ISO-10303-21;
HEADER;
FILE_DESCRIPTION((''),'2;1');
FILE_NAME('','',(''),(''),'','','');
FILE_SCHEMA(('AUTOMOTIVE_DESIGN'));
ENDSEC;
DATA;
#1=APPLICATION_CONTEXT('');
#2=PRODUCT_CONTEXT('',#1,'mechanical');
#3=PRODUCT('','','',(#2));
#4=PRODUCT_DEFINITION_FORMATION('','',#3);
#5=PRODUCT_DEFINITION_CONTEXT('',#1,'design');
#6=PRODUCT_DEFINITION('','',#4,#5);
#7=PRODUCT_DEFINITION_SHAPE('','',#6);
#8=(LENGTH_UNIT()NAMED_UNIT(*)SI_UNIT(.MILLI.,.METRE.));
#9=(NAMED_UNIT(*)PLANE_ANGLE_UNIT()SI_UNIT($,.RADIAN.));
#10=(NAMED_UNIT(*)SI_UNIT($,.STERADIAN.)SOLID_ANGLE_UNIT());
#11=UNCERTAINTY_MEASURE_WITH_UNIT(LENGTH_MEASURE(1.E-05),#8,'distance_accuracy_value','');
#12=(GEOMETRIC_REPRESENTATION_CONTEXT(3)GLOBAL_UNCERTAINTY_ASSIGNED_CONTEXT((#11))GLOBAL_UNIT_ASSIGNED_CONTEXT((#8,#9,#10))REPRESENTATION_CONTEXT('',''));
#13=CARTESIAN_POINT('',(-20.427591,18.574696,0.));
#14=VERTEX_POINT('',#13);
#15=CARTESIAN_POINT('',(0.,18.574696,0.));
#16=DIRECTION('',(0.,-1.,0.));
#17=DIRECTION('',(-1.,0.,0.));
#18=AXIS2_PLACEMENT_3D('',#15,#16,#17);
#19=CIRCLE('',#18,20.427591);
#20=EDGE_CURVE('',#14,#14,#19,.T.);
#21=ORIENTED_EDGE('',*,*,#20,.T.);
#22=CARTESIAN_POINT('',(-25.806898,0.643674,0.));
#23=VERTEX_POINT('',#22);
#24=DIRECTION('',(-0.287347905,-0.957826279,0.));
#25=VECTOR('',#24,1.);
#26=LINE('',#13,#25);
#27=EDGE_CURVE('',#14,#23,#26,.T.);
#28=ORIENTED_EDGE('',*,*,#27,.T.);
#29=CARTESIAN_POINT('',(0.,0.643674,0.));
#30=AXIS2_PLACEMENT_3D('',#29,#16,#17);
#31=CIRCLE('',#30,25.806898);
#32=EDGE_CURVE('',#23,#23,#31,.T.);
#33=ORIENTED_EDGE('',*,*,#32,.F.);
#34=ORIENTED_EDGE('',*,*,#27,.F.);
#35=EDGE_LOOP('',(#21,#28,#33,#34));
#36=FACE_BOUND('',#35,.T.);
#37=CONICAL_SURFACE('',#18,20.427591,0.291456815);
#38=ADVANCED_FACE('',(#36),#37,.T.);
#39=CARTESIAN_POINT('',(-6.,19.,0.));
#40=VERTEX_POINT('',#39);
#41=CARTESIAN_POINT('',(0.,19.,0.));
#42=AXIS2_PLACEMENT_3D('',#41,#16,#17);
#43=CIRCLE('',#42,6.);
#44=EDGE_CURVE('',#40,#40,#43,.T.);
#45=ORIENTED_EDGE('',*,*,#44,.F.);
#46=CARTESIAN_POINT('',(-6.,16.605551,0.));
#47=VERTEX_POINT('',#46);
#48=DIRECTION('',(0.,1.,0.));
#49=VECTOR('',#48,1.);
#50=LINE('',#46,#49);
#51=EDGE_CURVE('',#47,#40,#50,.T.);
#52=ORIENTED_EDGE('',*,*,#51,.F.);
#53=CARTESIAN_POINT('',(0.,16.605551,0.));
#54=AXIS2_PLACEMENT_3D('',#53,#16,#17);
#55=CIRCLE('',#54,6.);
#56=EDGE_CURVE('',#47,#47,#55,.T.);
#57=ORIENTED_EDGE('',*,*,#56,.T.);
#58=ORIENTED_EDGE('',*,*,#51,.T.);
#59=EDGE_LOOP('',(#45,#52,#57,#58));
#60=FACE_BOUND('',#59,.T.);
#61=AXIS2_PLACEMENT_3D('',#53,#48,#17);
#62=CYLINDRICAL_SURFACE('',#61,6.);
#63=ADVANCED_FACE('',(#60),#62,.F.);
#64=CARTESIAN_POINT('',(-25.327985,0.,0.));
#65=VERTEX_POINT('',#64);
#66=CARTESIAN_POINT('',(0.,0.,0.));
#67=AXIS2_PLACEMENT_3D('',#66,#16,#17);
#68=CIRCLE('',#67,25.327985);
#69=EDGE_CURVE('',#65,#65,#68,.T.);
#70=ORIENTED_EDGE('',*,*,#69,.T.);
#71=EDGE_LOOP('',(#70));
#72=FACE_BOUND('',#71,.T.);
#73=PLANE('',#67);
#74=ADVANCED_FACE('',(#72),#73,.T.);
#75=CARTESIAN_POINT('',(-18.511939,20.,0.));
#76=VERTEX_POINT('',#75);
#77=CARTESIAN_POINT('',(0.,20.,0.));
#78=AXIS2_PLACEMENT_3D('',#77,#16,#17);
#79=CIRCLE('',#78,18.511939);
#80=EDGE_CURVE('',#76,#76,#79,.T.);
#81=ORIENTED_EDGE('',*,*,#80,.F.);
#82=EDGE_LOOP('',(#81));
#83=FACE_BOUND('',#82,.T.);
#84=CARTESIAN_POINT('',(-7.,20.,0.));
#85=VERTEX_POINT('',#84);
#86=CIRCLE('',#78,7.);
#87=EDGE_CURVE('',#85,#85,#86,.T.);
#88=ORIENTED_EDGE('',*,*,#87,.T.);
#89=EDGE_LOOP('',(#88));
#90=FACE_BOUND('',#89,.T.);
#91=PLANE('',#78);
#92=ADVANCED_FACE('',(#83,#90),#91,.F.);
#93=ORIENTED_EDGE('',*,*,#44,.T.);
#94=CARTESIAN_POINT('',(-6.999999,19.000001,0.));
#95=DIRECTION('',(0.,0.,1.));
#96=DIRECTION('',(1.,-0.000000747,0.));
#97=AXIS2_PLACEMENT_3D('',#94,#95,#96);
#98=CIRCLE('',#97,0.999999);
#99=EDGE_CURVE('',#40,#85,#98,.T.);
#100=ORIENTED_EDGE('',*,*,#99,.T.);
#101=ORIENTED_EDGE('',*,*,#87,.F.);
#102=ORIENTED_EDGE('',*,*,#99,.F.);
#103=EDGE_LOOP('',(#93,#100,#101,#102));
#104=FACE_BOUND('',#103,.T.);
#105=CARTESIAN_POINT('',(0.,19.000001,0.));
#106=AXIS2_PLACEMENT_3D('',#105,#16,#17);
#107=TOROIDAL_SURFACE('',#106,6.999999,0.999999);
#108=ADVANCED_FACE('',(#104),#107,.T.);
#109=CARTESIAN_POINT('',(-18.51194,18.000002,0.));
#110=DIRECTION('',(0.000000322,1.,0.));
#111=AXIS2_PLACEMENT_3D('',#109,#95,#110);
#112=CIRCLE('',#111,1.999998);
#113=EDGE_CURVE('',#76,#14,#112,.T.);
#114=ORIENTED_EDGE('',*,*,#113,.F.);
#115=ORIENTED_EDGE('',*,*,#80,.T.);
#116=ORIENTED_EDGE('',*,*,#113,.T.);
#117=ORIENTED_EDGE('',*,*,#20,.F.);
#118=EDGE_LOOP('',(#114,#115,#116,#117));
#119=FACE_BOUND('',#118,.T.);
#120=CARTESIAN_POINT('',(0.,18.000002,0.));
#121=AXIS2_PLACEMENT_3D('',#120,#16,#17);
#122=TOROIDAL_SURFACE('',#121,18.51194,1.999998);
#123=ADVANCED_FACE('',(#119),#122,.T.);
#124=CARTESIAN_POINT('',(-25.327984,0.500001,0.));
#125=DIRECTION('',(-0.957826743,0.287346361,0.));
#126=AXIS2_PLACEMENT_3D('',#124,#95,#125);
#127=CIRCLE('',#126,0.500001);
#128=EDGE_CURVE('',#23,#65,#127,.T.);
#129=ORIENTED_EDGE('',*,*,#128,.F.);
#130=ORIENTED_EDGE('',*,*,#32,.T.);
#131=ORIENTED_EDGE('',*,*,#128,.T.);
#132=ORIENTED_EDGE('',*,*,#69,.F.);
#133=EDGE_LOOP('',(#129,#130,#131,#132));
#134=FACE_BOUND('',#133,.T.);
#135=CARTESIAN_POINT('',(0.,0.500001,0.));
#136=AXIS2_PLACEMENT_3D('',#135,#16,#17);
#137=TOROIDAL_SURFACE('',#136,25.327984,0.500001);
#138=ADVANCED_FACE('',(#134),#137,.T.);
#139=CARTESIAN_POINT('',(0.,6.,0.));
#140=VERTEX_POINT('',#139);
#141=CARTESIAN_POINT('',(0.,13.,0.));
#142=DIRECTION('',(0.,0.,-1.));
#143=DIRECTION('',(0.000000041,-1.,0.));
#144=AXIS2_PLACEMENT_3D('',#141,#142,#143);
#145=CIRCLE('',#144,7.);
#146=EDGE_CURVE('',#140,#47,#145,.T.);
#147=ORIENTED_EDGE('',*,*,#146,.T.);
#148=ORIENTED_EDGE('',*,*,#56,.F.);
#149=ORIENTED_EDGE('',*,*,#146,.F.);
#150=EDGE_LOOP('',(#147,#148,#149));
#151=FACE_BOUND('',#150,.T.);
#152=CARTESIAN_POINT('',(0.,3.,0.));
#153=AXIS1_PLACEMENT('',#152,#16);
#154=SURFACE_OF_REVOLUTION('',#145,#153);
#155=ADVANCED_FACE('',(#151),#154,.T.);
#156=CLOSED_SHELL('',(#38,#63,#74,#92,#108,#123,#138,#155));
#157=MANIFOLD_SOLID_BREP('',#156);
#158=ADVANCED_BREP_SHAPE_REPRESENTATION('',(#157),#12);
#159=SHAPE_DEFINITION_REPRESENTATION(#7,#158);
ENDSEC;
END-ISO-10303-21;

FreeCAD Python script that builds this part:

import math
import FreeCAD as App
import Part
import Sketcher
Q = App.Units.Quantity

doc = App.newDocument("Part")
body = doc.addObject("PartDesign::Body", "Body")

# Sketch on XY plane
sketch1 = doc.addObject("Sketcher::SketchObject", "Sketch")
body.addObject(sketch1)
sketch1.AttachmentSupport = (doc.XY_Plane, [""])
sketch1.MapMode = "FlatFace"
sketch1.addGeometry(Part.LineSegment(App.Vector(-20.4, 18.6, 0), App.Vector(-25.8, 0.6, 0)), False)
sketch1.addGeometry(Part.ArcOfCircle(Part.Circle(App.Vector(-25.3, 0.5, 0), App.Vector(0, 0, 1), 0.5), math.radians(163), math.radians(270)), False)
sketch1.addGeometry(Part.LineSegment(App.Vector(-25.3, 0, 0), App.Vector(0, 0, 0)), False)
sketch1.addGeometry(Part.LineSegment(App.Vector(0, 0, 0), App.Vector(0, 6, 0)), False)
sketch1.addGeometry(Part.ArcOfCircle(Part.Circle(App.Vector(0, 13, 0), App.Vector(0, 0, 1), 7), math.radians(149), math.radians(270)), False)
sketch1.addGeometry(Part.LineSegment(App.Vector(-6, 16.6, 0), App.Vector(-6, 19, 0)), False)
sketch1.addGeometry(Part.ArcOfCircle(Part.Circle(App.Vector(-7, 19, 0), App.Vector(0, 0, 1), 1), math.radians(0), math.radians(90)), False)
sketch1.addGeometry(Part.LineSegment(App.Vector(-7, 20, 0), App.Vector(-18.5, 20, 0)), False)
sketch1.addGeometry(Part.ArcOfCircle(Part.Circle(App.Vector(-18.5, 18, 0), App.Vector(0, 0, 1), 2), math.radians(90), math.radians(163)), False)
sketch1.addConstraint(Sketcher.Constraint("Tangent", 0, 2, 1, 1))
sketch1.addConstraint(Sketcher.Constraint("Tangent", 1, 2, 2, 1))
sketch1.addConstraint(Sketcher.Constraint("Coincident", 2, 2, 3, 1))
sketch1.addConstraint(Sketcher.Constraint("Coincident", 3, 2, 4, 2))
sketch1.addConstraint(Sketcher.Constraint("Coincident", 4, 1, 5, 1))
sketch1.addConstraint(Sketcher.Constraint("Tangent", 5, 2, 6, 1))
sketch1.addConstraint(Sketcher.Constraint("Tangent", 6, 2, 7, 1))
sketch1.addConstraint(Sketcher.Constraint("Tangent", 7, 2, 8, 1))
sketch1.addConstraint(Sketcher.Constraint("Tangent", 8, 2, 0, 1))
sketch1.addConstraint(Sketcher.Constraint("Horizontal", 2))
sketch1.addConstraint(Sketcher.Constraint("Vertical", 3))
sketch1.addConstraint(Sketcher.Constraint("Vertical", 5))
sketch1.addConstraint(Sketcher.Constraint("Horizontal", 7))
sketch1.addConstraint(Sketcher.Constraint("Coincident", 2, 2, -1, 1))
sketch1.addConstraint(Sketcher.Constraint("PointOnObject", 4, 3, -2))
sketch1.addConstraint(Sketcher.Constraint("Radius", 4, Q("7 mm")))
sketch1.addConstraint(Sketcher.Constraint("Radius", 6, Q("0.999999 mm")))
sketch1.addConstraint(Sketcher.Constraint("Radius", 8, Q("1.999998 mm")))
sketch1.addConstraint(Sketcher.Constraint("Radius", 1, Q("0.500001 mm")))
sketch1.addConstraint(Sketcher.Constraint("DistanceY", 3, 1, 3, 2, Q("6 mm")))
sketch1.addConstraint(Sketcher.Constraint("DistanceX", 6, 3, -1, 1, Q("6.999999 mm")))
sketch1.addConstraint(Sketcher.Constraint("DistanceY", -1, 1, 6, 3, Q("19.000001 mm")))
sketch1.addConstraint(Sketcher.Constraint("DistanceX", 7, 2, 7, 1, Q("11.511939 mm")))
sketch1.addConstraint(Sketcher.Constraint("DistanceX", 0, 2, -1, 1, Q("25.806898 mm")))
revolution = doc.addObject("PartDesign::Revolution", "Revolution")
body.addObject(revolution)
revolution.Profile = sketch1
revolution.ReferenceAxis = (sketch1, ["V_Axis"])
revolution.Angle = 360

doc.recompute()
